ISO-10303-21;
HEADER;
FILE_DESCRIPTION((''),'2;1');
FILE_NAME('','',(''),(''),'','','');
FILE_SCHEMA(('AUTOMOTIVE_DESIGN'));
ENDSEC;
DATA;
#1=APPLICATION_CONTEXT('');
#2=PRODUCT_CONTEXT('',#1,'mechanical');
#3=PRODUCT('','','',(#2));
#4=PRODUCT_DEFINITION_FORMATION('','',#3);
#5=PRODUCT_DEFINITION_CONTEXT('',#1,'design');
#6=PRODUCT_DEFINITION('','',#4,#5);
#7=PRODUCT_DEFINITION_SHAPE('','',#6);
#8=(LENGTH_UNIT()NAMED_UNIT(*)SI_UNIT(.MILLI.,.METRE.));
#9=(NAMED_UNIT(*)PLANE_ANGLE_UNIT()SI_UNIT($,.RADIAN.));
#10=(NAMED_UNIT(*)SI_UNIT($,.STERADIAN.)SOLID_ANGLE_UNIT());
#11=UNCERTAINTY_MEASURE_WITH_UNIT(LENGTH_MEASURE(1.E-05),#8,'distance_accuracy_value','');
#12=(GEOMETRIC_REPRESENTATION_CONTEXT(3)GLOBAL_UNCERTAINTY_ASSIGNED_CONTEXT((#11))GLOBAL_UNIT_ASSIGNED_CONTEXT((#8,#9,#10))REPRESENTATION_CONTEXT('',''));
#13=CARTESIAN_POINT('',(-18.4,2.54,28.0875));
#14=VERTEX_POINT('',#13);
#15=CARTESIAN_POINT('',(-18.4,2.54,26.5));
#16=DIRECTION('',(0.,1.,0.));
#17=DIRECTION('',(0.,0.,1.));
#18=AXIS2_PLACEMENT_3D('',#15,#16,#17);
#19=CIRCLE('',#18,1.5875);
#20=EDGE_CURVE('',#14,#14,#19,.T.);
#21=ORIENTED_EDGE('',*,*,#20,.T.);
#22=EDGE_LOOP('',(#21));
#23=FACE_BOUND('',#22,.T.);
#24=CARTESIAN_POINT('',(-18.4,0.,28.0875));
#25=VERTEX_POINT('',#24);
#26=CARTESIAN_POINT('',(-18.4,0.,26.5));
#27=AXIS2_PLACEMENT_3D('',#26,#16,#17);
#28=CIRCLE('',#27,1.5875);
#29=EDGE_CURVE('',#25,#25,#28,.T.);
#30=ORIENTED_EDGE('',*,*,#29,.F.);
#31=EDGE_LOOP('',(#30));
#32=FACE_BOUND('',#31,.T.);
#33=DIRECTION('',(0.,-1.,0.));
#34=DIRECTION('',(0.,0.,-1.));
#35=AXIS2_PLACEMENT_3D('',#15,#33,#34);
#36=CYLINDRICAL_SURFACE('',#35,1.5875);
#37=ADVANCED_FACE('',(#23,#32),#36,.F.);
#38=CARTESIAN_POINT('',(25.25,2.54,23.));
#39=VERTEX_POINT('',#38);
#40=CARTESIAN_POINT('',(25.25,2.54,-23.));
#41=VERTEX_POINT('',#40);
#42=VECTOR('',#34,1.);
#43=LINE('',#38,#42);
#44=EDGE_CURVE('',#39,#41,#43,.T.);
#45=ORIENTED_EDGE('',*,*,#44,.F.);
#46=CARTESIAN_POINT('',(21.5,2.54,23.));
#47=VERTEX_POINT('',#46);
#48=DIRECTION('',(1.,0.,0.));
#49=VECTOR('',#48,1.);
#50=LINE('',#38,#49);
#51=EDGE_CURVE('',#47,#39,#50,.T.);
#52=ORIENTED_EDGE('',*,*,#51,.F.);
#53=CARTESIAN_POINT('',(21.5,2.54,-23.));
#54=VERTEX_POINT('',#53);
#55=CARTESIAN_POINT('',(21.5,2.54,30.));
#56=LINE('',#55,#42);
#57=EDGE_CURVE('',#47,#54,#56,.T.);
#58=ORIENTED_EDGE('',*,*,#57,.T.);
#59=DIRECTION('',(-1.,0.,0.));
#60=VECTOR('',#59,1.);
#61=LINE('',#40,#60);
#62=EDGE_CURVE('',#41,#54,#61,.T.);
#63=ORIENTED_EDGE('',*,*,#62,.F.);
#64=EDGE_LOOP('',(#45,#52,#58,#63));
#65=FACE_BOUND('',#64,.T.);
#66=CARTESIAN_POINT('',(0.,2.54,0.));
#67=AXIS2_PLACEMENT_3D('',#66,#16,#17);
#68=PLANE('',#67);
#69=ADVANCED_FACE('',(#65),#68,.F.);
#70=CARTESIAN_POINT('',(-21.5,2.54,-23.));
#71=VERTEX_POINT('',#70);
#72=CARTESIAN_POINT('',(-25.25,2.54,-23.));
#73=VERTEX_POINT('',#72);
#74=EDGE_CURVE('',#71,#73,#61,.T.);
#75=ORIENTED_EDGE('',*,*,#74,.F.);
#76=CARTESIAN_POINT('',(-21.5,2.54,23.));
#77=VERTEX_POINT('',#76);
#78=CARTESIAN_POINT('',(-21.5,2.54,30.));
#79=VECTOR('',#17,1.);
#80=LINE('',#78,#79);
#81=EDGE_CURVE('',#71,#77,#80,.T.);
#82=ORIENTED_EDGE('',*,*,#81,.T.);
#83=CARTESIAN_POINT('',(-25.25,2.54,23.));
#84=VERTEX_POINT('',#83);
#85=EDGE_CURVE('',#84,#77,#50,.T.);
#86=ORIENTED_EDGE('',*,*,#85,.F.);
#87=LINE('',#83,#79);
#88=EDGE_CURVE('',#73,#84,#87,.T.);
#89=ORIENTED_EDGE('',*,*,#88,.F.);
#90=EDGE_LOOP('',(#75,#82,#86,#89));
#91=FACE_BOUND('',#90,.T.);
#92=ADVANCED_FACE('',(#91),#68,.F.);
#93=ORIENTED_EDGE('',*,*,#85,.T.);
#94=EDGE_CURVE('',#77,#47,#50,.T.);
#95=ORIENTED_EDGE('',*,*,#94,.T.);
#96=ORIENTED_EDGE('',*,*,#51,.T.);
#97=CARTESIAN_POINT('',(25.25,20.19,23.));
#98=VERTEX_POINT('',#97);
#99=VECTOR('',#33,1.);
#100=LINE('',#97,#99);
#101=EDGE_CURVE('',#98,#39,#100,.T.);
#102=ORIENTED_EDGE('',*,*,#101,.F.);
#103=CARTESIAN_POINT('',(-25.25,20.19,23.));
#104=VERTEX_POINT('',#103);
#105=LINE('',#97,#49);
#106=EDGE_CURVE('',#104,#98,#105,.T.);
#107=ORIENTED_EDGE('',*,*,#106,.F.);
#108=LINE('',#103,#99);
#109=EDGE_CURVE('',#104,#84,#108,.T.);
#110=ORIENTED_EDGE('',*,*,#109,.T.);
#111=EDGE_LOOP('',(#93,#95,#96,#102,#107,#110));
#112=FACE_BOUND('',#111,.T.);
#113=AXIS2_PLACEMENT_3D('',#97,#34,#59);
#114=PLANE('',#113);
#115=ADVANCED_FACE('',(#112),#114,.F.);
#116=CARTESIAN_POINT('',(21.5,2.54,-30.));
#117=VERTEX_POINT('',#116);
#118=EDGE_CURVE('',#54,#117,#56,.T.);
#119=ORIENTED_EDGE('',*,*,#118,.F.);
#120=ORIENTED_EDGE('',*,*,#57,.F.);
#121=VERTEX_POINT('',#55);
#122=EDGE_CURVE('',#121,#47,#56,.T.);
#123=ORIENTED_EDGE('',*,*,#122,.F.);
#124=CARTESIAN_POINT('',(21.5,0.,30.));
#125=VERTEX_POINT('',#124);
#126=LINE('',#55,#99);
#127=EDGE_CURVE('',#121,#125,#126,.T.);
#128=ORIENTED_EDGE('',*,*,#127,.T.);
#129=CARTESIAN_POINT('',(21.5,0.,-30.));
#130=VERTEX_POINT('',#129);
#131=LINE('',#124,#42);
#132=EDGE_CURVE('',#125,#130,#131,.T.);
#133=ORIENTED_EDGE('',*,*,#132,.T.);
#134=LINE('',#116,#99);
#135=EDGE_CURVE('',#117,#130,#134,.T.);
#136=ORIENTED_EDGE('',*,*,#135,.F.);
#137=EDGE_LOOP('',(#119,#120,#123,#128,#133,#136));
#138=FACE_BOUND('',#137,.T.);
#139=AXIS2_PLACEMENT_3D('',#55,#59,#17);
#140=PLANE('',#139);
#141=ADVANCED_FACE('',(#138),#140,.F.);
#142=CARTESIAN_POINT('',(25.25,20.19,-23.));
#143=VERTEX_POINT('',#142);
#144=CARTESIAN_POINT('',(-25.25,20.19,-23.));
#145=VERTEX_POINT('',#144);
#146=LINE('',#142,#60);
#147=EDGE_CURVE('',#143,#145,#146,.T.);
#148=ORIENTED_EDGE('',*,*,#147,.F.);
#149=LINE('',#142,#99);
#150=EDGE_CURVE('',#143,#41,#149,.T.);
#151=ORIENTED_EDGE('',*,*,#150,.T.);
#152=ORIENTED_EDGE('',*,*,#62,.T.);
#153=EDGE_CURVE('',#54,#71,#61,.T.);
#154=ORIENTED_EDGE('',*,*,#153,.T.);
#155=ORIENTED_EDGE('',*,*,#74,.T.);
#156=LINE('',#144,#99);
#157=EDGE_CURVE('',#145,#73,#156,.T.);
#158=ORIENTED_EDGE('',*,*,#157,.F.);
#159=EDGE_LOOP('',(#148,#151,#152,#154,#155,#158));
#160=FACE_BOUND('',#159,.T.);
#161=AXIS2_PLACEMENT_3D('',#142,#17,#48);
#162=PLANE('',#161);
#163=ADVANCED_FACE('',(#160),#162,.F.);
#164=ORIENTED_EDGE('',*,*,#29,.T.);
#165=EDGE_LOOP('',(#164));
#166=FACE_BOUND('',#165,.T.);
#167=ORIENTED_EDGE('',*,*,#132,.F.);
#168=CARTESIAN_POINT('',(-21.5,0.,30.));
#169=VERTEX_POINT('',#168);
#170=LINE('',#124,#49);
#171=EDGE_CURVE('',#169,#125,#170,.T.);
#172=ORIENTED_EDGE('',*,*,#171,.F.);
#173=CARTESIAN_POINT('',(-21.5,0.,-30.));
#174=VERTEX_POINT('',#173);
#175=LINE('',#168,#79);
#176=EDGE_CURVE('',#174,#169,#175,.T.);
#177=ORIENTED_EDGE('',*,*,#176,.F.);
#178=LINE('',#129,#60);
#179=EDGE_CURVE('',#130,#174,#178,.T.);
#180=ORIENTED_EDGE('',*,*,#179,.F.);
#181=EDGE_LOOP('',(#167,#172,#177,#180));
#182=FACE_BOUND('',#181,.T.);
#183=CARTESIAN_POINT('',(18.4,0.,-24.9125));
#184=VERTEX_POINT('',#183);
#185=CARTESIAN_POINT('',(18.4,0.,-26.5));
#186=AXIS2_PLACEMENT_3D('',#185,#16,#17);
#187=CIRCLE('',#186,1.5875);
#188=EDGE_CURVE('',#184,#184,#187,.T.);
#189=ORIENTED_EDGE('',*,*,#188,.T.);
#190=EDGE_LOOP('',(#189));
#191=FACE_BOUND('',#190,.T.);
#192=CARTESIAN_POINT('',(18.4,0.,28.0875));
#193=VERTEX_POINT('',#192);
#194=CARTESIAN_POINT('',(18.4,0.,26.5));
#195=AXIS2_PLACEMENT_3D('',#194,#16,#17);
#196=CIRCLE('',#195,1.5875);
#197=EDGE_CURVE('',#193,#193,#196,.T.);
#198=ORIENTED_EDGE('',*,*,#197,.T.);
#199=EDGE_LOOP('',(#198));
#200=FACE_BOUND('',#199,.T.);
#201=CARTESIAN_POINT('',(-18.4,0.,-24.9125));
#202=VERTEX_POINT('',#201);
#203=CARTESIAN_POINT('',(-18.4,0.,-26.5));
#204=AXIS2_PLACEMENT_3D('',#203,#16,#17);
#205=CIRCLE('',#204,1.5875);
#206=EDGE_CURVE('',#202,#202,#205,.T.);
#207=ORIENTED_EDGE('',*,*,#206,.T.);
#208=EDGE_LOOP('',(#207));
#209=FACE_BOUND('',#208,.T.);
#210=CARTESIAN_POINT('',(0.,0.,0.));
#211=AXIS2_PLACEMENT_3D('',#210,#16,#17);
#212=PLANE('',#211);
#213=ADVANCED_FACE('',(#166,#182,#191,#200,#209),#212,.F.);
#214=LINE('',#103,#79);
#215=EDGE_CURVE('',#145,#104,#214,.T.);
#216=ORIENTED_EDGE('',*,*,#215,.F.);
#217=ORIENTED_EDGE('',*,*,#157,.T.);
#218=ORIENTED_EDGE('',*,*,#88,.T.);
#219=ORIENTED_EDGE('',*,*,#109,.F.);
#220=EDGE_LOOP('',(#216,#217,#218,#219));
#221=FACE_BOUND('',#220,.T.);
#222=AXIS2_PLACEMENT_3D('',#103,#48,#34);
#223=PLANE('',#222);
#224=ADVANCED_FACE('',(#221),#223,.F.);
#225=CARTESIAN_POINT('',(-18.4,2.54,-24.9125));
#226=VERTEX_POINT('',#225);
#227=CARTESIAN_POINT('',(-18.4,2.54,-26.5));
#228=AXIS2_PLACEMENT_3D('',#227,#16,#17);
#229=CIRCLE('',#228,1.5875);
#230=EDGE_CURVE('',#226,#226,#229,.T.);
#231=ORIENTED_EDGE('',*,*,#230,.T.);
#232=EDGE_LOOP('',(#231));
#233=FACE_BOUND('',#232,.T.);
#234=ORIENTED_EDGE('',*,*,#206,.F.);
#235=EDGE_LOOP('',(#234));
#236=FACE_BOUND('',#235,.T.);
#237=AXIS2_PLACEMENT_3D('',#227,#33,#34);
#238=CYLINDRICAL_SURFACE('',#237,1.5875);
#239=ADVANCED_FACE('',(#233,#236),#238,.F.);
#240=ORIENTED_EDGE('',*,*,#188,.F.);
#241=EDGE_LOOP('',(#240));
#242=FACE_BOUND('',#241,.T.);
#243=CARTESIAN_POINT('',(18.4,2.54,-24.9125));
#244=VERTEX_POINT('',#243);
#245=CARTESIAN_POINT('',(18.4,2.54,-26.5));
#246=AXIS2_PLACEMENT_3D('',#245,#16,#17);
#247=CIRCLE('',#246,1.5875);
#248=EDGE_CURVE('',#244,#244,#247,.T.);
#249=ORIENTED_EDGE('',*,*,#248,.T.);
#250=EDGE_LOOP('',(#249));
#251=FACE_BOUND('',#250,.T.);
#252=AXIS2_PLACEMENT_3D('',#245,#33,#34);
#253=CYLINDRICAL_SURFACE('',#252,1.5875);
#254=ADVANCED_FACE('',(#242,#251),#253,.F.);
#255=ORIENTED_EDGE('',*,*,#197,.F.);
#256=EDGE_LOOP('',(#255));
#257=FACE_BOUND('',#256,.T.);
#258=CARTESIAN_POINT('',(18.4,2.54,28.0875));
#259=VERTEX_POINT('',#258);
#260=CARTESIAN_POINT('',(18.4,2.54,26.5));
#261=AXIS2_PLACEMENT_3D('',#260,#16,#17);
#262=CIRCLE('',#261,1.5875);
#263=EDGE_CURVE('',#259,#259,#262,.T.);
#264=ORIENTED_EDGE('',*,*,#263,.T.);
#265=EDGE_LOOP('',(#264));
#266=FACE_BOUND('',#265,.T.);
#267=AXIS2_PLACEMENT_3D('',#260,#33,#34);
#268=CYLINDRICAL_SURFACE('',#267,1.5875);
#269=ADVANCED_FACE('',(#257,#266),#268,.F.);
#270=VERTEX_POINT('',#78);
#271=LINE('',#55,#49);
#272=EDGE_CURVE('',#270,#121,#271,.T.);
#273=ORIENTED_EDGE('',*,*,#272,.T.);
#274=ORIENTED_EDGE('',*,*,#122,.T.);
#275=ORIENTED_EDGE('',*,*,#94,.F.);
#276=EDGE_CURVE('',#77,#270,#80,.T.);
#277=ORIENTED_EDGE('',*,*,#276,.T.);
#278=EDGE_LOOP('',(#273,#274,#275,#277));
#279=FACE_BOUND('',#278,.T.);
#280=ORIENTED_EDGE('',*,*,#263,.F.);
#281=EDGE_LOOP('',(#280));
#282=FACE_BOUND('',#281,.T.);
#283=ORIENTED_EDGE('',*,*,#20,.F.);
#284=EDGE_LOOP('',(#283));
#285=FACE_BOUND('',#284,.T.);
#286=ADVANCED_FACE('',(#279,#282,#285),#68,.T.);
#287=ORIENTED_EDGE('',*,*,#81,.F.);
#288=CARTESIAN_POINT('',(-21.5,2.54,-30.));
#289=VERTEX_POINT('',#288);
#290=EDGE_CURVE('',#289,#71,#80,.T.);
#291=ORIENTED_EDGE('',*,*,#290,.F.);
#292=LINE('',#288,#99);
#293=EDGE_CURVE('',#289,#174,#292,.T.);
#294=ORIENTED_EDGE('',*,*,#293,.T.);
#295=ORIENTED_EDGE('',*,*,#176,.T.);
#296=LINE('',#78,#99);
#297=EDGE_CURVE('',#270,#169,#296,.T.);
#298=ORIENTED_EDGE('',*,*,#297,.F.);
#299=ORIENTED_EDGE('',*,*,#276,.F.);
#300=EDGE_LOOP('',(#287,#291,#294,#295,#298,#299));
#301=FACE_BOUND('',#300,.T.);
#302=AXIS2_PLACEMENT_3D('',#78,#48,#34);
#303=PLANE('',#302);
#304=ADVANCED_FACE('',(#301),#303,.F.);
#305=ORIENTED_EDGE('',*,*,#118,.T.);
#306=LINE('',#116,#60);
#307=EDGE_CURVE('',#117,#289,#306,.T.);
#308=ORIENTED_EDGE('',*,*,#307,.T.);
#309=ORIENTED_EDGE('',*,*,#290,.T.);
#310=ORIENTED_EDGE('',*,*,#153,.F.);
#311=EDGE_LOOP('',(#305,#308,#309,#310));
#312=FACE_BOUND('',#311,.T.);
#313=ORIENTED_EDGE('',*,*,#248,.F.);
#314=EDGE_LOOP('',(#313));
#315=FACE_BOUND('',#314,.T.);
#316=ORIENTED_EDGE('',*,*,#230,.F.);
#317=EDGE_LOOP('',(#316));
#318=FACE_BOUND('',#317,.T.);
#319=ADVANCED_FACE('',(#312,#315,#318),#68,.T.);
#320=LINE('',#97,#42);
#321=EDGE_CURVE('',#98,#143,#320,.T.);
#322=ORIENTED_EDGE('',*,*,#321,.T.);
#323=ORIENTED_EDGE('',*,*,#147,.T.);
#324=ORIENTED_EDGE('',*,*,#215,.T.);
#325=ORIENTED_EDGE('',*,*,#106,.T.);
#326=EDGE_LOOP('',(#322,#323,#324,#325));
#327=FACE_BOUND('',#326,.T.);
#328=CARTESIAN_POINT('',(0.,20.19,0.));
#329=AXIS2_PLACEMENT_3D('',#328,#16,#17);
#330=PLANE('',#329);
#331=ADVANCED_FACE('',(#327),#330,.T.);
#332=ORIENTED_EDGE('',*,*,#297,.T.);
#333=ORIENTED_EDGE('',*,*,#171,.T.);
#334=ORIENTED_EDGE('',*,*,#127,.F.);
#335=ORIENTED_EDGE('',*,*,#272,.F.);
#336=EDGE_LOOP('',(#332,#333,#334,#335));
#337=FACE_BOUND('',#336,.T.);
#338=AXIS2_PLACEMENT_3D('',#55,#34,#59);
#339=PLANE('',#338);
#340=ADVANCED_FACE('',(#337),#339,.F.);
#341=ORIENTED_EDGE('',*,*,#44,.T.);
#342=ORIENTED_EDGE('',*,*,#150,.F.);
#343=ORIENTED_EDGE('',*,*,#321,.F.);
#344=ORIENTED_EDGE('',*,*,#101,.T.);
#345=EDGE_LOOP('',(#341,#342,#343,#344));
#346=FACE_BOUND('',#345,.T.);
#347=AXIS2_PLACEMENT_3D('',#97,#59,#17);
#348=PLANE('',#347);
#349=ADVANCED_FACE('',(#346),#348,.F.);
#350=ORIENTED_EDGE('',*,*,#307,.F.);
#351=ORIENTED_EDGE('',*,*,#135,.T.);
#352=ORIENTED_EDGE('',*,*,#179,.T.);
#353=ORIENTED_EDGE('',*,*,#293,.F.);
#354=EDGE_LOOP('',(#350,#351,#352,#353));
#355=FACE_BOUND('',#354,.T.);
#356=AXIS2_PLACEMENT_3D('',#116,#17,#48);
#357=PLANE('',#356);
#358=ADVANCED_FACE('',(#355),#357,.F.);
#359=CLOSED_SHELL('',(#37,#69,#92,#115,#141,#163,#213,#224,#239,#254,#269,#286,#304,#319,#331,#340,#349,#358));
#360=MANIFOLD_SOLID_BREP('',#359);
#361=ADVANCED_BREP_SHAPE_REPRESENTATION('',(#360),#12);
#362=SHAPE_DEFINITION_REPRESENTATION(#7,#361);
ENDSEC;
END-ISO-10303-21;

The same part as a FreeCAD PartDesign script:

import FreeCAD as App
import Part
import Sketcher

V = App.Vector
Q = App.Units.Quantity

doc = App.newDocument("Part")
body = doc.addObject("PartDesign::Body", "Body")

# Sketch on XZ plane
sketch1 = doc.addObject("Sketcher::SketchObject", "Sketch")
body.addObject(sketch1)
sketch1.AttachmentSupport = (doc.XZ_Plane, [""])
sketch1.MapMode = "FlatFace"
sketch1.addGeometry([
    Part.LineSegment(V(-21.5, -30, 0), V(-21.5, 30, 0)),  # 0
    Part.LineSegment(V(-21.5, 30, 0), V(21.5, 30, 0)),  # 1
    Part.LineSegment(V(21.5, 30, 0), V(21.5, -30, 0)),  # 2
    Part.LineSegment(V(21.5, -30, 0), V(-21.5, -30, 0)),  # 3
    Part.Circle(V(-18.4, 26.5, 0), V(0, 0, 1), 1.6),  # 4
    Part.Circle(V(18.4, 26.5, 0), V(0, 0, 1), 1.6),  # 5
    Part.Circle(V(-18.4, -26.5, 0), V(0, 0, 1), 1.6),  # 6
    Part.Circle(V(18.4, -26.5, 0), V(0, 0, 1), 1.6),  # 7
], False)
sketch1.addConstraint([
    Sketcher.Constraint("Coincident", 0, 2, 1, 1),
    Sketcher.Constraint("Coincident", 1, 2, 2, 1),
    Sketcher.Constraint("Coincident", 2, 2, 3, 1),
    Sketcher.Constraint("Coincident", 3, 2, 0, 1),
    Sketcher.Constraint("Vertical", 0),
    Sketcher.Constraint("Horizontal", 1),
    Sketcher.Constraint("Vertical", 2),
    Sketcher.Constraint("Horizontal", 3),
    Sketcher.Constraint("Equal", 4, 5),
    Sketcher.Constraint("Equal", 5, 6),
    Sketcher.Constraint("Equal", 6, 7),
    Sketcher.Constraint("Symmetric", 5, 3, 6, 3, -1, 1),
    Sketcher.Constraint("Symmetric", 4, 3, 7, 3, -1, 1),
    Sketcher.Constraint("Symmetric", 0, 2, 2, 2, -1, 1),
    Sketcher.Constraint("Symmetric", 4, 3, 5, 3, -2),
    Sketcher.Constraint("DistanceX", 1, 1, 1, 2, Q("43 mm")),
    Sketcher.Constraint("DistanceY", 0, 1, 0, 2, Q("60 mm")),
    Sketcher.Constraint("Diameter", 4, Q("3.175 mm")),
    Sketcher.Constraint("DistanceY", 6, 3, 4, 3, Q("53 mm")),
    Sketcher.Constraint("DistanceX", 4, 3, -1, 1, Q("18.4 mm")),
])
pad1 = doc.addObject("PartDesign::Pad", "Pad")
body.addObject(pad1)
pad1.Profile = sketch1
pad1.Length = 2.54
pad1.Reversed = True

# Sketch on XZ plane
sketch2 = doc.addObject("Sketcher::SketchObject", "Sketch001")
body.addObject(sketch2)
sketch2.AttachmentSupport = (doc.XZ_Plane, [""])
sketch2.MapMode = "FlatFace"
sketch2.AttachmentOffset = App.Placement(V(0, 0, -2.54), App.Rotation())
sketch2.addGeometry([
    Part.LineSegment(V(-25, -23, 0), V(-25, 23, 0)),
    Part.LineSegment(V(-25, 23, 0), V(25, 23, 0)),
    Part.LineSegment(V(25, 23, 0), V(25, -23, 0)),
    Part.LineSegment(V(25, -23, 0), V(-25, -23, 0)),
], False)
sketch2.addConstraint([
    Sketcher.Constraint("Coincident", 0, 2, 1, 1),
    Sketcher.Constraint("Coincident", 1, 2, 2, 1),
    Sketcher.Constraint("Coincident", 2, 2, 3, 1),
    Sketcher.Constraint("Coincident", 3, 2, 0, 1),
    Sketcher.Constraint("Vertical", 0),
    Sketcher.Constraint("Horizontal", 1),
    Sketcher.Constraint("Vertical", 2),
    Sketcher.Constraint("Horizontal", 3),
    Sketcher.Constraint("Symmetric", 0, 2, 2, 2, -1, 1),
    Sketcher.Constraint("DistanceY", 0, 1, 0, 2, Q("46 mm")),
    Sketcher.Constraint("DistanceX", 1, 1, 1, 2, Q("50.5 mm")),
])
pad2 = doc.addObject("PartDesign::Pad", "Pad001")
body.addObject(pad2)
pad2.Profile = sketch2
pad2.Length = 17.65
pad2.Reversed = True

doc.recompute()
